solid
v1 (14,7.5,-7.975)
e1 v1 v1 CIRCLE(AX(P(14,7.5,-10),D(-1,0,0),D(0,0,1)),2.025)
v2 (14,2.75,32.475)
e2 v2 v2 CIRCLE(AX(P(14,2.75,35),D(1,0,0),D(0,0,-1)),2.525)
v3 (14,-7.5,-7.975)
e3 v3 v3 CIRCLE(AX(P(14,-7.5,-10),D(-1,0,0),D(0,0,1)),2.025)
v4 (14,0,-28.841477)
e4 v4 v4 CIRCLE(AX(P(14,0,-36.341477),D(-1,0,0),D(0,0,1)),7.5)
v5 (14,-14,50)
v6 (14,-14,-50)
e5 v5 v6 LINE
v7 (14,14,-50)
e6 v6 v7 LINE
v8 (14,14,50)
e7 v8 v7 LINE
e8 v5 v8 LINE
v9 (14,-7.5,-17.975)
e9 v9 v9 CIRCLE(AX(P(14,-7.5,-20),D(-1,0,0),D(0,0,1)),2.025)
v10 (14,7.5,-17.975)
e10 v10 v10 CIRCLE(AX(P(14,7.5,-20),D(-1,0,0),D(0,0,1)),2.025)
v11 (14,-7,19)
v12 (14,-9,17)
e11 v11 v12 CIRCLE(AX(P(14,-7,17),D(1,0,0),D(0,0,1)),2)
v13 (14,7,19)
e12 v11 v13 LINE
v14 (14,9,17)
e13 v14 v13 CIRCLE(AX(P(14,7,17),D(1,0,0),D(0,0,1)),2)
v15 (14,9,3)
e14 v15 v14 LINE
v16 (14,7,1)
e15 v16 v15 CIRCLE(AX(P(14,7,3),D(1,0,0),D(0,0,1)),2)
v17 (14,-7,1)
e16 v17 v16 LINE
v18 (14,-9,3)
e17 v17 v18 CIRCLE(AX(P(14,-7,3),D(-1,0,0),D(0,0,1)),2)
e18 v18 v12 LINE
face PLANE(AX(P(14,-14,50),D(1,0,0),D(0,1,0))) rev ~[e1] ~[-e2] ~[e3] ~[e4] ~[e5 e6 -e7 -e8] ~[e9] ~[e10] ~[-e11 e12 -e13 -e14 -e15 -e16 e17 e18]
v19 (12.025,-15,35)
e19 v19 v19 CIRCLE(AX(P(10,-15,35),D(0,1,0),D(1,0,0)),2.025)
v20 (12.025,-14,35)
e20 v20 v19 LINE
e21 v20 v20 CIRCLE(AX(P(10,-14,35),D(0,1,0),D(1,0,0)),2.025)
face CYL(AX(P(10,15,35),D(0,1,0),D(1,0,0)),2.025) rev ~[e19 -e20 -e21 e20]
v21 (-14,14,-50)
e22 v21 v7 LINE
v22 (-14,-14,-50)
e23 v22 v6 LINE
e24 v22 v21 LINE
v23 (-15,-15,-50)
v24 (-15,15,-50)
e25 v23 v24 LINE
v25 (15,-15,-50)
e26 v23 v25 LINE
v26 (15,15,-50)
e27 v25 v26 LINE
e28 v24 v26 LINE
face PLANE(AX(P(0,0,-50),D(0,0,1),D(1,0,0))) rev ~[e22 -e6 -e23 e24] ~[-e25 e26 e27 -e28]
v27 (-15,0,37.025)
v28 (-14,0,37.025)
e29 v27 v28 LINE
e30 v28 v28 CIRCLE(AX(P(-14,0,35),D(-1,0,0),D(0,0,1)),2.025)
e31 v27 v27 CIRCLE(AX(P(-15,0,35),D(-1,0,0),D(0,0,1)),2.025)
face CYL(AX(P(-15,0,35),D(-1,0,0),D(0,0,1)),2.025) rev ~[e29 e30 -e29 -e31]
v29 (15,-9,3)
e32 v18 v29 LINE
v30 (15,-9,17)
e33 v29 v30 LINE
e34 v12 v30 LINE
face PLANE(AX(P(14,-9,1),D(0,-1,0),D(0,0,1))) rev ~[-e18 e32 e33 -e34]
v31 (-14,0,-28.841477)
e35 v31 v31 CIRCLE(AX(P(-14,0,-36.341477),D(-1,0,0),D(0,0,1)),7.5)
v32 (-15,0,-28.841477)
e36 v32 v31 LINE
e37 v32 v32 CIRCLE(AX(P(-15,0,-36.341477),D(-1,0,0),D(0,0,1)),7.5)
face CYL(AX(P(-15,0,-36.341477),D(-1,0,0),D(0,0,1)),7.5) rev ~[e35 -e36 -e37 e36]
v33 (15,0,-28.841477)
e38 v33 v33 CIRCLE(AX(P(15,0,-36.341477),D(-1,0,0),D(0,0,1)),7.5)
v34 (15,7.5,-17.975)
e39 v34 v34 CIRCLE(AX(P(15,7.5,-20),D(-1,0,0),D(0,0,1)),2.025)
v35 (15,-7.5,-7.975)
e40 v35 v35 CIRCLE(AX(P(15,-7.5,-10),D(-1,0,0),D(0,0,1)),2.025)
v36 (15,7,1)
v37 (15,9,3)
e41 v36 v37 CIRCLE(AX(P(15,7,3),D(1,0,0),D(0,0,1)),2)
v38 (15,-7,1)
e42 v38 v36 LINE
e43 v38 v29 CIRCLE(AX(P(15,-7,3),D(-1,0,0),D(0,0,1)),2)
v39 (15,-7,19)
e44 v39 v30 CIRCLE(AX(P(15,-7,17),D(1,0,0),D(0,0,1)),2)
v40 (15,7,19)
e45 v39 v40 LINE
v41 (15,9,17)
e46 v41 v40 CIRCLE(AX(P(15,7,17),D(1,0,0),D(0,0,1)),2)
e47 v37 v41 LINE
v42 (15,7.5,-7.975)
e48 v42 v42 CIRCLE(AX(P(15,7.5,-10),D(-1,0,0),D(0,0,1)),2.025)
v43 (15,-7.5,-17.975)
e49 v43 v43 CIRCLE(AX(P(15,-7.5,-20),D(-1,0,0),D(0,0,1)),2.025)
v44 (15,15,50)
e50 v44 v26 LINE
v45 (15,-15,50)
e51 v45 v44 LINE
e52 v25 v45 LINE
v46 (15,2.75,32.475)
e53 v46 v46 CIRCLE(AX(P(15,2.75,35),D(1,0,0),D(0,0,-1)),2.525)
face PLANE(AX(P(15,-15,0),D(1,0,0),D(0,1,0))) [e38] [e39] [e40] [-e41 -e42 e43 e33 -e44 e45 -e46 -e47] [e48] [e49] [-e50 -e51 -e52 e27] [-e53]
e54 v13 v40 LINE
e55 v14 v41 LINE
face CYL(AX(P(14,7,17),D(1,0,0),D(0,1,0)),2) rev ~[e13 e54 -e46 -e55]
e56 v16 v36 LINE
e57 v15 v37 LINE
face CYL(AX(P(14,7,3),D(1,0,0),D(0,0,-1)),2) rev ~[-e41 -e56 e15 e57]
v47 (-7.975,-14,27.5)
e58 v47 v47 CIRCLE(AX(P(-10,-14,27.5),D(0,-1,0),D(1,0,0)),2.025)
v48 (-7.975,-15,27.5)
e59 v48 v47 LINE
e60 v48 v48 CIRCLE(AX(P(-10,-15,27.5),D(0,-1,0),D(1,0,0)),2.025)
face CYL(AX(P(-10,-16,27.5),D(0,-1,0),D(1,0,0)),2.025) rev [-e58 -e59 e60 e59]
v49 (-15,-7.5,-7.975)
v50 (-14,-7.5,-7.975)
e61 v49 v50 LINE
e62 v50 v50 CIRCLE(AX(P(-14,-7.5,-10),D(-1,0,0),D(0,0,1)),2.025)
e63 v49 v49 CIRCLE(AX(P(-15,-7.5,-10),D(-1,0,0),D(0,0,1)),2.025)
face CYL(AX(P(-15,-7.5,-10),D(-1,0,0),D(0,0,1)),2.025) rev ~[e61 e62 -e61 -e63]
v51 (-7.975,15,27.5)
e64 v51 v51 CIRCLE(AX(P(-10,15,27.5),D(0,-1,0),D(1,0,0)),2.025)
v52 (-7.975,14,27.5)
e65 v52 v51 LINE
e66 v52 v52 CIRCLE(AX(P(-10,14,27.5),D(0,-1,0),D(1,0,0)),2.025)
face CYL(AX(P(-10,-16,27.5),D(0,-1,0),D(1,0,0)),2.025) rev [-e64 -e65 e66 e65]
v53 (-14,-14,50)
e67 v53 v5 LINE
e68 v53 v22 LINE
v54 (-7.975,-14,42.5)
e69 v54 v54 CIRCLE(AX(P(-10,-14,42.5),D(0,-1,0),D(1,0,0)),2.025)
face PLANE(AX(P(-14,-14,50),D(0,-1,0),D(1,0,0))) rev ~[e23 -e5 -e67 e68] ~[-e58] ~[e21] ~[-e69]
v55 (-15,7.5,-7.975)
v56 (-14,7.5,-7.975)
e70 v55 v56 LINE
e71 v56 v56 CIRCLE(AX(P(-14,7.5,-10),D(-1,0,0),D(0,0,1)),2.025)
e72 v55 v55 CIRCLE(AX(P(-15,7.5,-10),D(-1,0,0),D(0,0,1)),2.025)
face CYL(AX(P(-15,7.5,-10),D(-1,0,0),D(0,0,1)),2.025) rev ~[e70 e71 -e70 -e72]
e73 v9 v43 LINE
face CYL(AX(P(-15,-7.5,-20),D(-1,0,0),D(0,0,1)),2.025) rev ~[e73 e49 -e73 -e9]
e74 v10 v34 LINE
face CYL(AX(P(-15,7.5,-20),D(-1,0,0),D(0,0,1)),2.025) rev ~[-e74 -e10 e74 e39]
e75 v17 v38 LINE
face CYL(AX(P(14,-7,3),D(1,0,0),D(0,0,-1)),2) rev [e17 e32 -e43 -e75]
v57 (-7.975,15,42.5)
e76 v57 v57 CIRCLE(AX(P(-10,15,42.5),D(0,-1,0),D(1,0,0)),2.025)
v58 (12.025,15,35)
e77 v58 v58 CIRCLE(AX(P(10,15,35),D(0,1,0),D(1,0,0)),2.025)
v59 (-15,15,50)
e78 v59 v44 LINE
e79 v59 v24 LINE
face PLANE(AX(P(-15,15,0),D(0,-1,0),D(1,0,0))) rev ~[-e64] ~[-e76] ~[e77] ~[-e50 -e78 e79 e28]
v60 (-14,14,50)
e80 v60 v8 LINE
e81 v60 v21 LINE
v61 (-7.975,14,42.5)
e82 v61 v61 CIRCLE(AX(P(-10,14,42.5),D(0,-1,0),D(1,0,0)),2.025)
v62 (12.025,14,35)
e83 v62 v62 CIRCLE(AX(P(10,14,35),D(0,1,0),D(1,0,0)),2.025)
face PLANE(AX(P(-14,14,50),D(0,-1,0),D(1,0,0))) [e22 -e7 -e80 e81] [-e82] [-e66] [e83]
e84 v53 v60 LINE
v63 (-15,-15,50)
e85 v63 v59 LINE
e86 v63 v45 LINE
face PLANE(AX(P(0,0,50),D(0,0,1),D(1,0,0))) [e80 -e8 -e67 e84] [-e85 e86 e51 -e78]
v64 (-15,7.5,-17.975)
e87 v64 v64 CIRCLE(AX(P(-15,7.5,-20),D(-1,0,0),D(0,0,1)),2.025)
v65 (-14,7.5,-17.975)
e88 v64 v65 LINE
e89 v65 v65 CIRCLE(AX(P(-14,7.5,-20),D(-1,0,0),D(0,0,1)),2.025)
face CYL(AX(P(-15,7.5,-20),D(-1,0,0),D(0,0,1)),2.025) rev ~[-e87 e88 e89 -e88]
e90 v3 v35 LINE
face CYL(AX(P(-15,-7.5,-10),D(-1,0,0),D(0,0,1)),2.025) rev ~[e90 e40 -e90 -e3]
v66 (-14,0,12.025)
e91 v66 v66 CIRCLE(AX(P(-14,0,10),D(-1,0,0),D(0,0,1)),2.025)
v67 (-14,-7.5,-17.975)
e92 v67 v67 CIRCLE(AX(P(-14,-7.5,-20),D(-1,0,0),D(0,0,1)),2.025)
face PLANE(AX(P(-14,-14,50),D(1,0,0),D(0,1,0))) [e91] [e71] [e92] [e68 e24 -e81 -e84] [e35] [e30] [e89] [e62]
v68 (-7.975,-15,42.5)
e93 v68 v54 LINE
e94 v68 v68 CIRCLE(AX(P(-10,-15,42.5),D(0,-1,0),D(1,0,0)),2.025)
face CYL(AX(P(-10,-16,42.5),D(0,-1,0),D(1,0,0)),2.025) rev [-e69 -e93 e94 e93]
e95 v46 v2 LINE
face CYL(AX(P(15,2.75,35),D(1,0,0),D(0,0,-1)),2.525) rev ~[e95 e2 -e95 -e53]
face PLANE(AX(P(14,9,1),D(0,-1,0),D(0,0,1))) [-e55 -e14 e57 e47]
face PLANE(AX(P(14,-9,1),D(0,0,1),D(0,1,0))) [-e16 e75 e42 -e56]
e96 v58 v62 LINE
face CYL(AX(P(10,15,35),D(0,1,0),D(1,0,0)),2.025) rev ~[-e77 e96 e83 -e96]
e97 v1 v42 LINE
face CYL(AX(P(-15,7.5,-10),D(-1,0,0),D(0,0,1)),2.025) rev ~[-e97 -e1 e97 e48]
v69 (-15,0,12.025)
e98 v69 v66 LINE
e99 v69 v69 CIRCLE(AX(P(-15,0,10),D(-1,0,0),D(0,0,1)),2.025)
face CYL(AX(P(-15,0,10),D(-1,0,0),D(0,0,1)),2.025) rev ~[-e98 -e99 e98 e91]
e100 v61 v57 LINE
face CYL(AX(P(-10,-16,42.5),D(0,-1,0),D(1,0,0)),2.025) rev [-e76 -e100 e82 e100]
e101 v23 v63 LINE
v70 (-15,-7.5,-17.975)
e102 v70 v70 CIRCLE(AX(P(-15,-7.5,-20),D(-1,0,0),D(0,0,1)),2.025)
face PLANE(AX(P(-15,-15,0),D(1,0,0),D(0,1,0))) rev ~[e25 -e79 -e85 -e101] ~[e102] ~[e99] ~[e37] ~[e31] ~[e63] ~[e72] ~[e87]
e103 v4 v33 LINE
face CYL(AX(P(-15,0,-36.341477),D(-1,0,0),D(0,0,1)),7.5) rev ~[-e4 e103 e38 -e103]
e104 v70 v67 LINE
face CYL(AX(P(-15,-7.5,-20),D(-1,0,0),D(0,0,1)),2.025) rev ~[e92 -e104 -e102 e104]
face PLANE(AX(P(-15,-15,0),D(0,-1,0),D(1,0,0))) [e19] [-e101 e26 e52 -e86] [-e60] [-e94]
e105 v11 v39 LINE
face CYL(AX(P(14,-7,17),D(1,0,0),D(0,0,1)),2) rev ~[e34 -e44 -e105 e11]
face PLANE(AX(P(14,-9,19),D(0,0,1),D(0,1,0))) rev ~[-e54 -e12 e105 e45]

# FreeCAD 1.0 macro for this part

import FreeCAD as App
import Part
import Sketcher
Q = App.Units.Quantity


def edges_at(feature, points):
    """Names of the edges that pass closest to the given points."""
    edges = feature.Shape.Edges
    near = lambda p: min(range(len(edges)), key=lambda i: edges[i].distToShape(Part.Vertex(*p))[0])
    return sorted({f"Edge{near(p) + 1}" for p in points})

doc = App.newDocument("Part")
body = doc.addObject("PartDesign::Body", "Body")

sketch1 = body.newObject("Sketcher::SketchObject", "Sketch")
sketch1.AttachmentSupport = (doc.getObject("XY_Plane"), [""])
sketch1.MapMode = "FlatFace"
sketch1.addGeometry(Part.LineSegment(App.Vector(-15, 15, 0), App.Vector(-15, -15, 0)), False)
sketch1.addGeometry(Part.LineSegment(App.Vector(-15, -15, 0), App.Vector(15, -15, 0)), False)
sketch1.addGeometry(Part.LineSegment(App.Vector(15, -15, 0), App.Vector(15, 15, 0)), False)
sketch1.addGeometry(Part.LineSegment(App.Vector(15, 15, 0), App.Vector(-15, 15, 0)), False)
sketch1.addConstraint(Sketcher.Constraint("Coincident", 0, 2, 1, 1))
sketch1.addConstraint(Sketcher.Constraint("Coincident", 1, 2, 2, 1))
sketch1.addConstraint(Sketcher.Constraint("Coincident", 2, 2, 3, 1))
sketch1.addConstraint(Sketcher.Constraint("Coincident", 3, 2, 0, 1))
sketch1.addConstraint(Sketcher.Constraint("Vertical", 0))
sketch1.addConstraint(Sketcher.Constraint("Horizontal", 1))
sketch1.addConstraint(Sketcher.Constraint("Vertical", 2))
sketch1.addConstraint(Sketcher.Constraint("Horizontal", 3))
sketch1.addConstraint(Sketcher.Constraint("Symmetric", 0, 2, 2, 2, -1, 1))
sketch1.addConstraint(Sketcher.Constraint("Equal", 3, 0))
sketch1.addConstraint(Sketcher.Constraint("DistanceX", 1, 1, 1, 2, Q("30 mm")))
pad1 = body.newObject("PartDesign::Pad", "Pad")
pad1.Profile = sketch1
pad1.Length = 100
pad1.Midplane = True

sketch2 = body.newObject("Sketcher::SketchObject", "Sketch001")
sketch2.AttachmentSupport = (doc.getObject("XY_Plane"), [""])
sketch2.MapMode = "FlatFace"
sketch2.AttachmentOffset = App.Placement(App.Vector(0, 0, 50), App.Rotation())
sketch2.addGeometry(Part.LineSegment(App.Vector(-14, 14, 0), App.Vector(-14, -14, 0)), False)
sketch2.addGeometry(Part.LineSegment(App.Vector(-14, -14, 0), App.Vector(14, -14, 0)), False)
sketch2.addGeometry(Part.LineSegment(App.Vector(14, -14, 0), App.Vector(14, 14, 0)), False)
sketch2.addGeometry(Part.LineSegment(App.Vector(14, 14, 0), App.Vector(-14, 14, 0)), False)
sketch2.addConstraint(Sketcher.Constraint("Coincident", 0, 2, 1, 1))
sketch2.addConstraint(Sketcher.Constraint("Coincident", 1, 2, 2, 1))
sketch2.addConstraint(Sketcher.Constraint("Coincident", 2, 2, 3, 1))
sketch2.addConstraint(Sketcher.Constraint("Coincident", 3, 2, 0, 1))
sketch2.addConstraint(Sketcher.Constraint("Vertical", 0))
sketch2.addConstraint(Sketcher.Constraint("Horizontal", 1))
sketch2.addConstraint(Sketcher.Constraint("Vertical", 2))
sketch2.addConstraint(Sketcher.Constraint("Horizontal", 3))
sketch2.addConstraint(Sketcher.Constraint("Symmetric", 0, 2, 2, 2, -1, 1))
sketch2.addConstraint(Sketcher.Constraint("Equal", 3, 0))
sketch2.addConstraint(Sketcher.Constraint("DistanceX", 1, 1, 1, 2, Q("28 mm")))
pocket1 = body.newObject("PartDesign::Pocket", "Pocket")
pocket1.Profile = sketch2
pocket1.Type = "ThroughAll"
pocket1.Midplane = True

sketch3 = body.newObject("Sketcher::SketchObject", "Sketch002")
sketch3.AttachmentSupport = (doc.getObject("YZ_Plane"), [""])
sketch3.MapMode = "FlatFace"
sketch3.AttachmentOffset = App.Placement(App.Vector(0, 0, -15), App.Rotation())
sketch3.addGeometry(Part.Circle(App.Vector(0, 10, 0), App.Vector(0, 0, 1), 2.025), False)
sketch3.addGeometry(Part.Circle(App.Vector(0, 35, 0), App.Vector(0, 0, 1), 2.025), False)
sketch3.addConstraint(Sketcher.Constraint("Equal", 0, 1))
sketch3.addConstraint(Sketcher.Constraint("PointOnObject", 0, 3, -2))
sketch3.addConstraint(Sketcher.Constraint("PointOnObject", 1, 3, -2))
sketch3.addConstraint(Sketcher.Constraint("Diameter", 0, Q("4.05 mm")))
sketch3.addConstraint(Sketcher.Constraint("DistanceY", -1, 1, 0, 3, Q("10 mm")))
sketch3.addConstraint(Sketcher.Constraint("DistanceY", -1, 1, 1, 3, Q("35 mm")))
pocket2 = body.newObject("PartDesign::Pocket", "Pocket001")
pocket2.Profile = sketch3
pocket2.Length = 1
pocket2.Reversed = True

sketch4 = body.newObject("Sketcher::SketchObject", "Sketch003")
sketch4.AttachmentSupport = (doc.getObject("YZ_Plane"), [""])
sketch4.MapMode = "FlatFace"
sketch4.AttachmentOffset = App.Placement(App.Vector(0, 0, 14), App.Rotation())
sketch4.addGeometry(Part.LineSegment(App.Vector(9, 1, 0), App.Vector(-9, 1, 0)), False)
sketch4.addGeometry(Part.LineSegment(App.Vector(-9, 1, 0), App.Vector(-9, 19, 0)), False)
sketch4.addGeometry(Part.LineSegment(App.Vector(-9, 19, 0), App.Vector(9, 19, 0)), False)
sketch4.addGeometry(Part.LineSegment(App.Vector(9, 19, 0), App.Vector(9, 1, 0)), False)
sketch4.addConstraint(Sketcher.Constraint("Coincident", 0, 2, 1, 1))
sketch4.addConstraint(Sketcher.Constraint("Coincident", 1, 2, 2, 1))
sketch4.addConstraint(Sketcher.Constraint("Coincident", 2, 2, 3, 1))
sketch4.addConstraint(Sketcher.Constraint("Coincident", 3, 2, 0, 1))
sketch4.addConstraint(Sketcher.Constraint("Horizontal", 0))
sketch4.addConstraint(Sketcher.Constraint("Vertical", 1))
sketch4.addConstraint(Sketcher.Constraint("Horizontal", 2))
sketch4.addConstraint(Sketcher.Constraint("Vertical", 3))
sketch4.addConstraint(Sketcher.Constraint("Equal", 2, 1))
sketch4.addConstraint(Sketcher.Constraint("DistanceX", 0, 2, 0, 1, Q("18 mm")))
sketch4.addConstraint(Sketcher.Constraint("DistanceX", 0, 2, -1, 1, Q("9 mm")))
sketch4.addConstraint(Sketcher.Constraint("DistanceY", -1, 1, 0, 2, Q("1 mm")))
pocket3 = body.newObject("PartDesign::Pocket", "Pocket002")
pocket3.Profile = sketch4
pocket3.Length = 1
pocket3.Reversed = True
doc.recompute()

fillet = body.newObject("PartDesign::Fillet", "Fillet")
fillet.Base = (pocket3, edges_at(pocket3, [
    (14.5, 9, 19),
    (14.5, -9, 19),
    (14.5, -9, 1),
    (14.5, 9, 1),
]))
fillet.Radius = 2

sketch5 = body.newObject("Sketcher::SketchObject", "Sketch004")
sketch5.AttachmentSupport = (doc.getObject("XZ_Plane"), [""])
sketch5.MapMode = "FlatFace"
sketch5.AttachmentOffset = App.Placement(App.Vector(0, 0, 16), App.Rotation())
sketch5.addGeometry(Part.Circle(App.Vector(-10, 27.5, 0), App.Vector(0, 0, 1), 2.025), False)
sketch5.addGeometry(Part.Circle(App.Vector(-10, 42.5, 0), App.Vector(0, 0, 1), 2.025), False)
sketch5.addConstraint(Sketcher.Constraint("Equal", 0, 1))
sketch5.addConstraint(Sketcher.Constraint("Vertical", 0, 3, 1, 3))
sketch5.addConstraint(Sketcher.Constraint("Diameter", 0, Q("4.05 mm")))
sketch5.addConstraint(Sketcher.Constraint("DistanceX", 0, 3, -1, 1, Q("10 mm")))
sketch5.addConstraint(Sketcher.Constraint("DistanceY", 0, 3, 1, 3, Q("15 mm")))
sketch5.addConstraint(Sketcher.Constraint("DistanceY", -1, 1, 0, 3, Q("27.5 mm")))
pocket4 = body.newObject("PartDesign::Pocket", "Pocket003")
pocket4.Profile = sketch5
pocket4.Length = 32
doc.recompute()

mirrored = body.newObject("PartDesign::Mirrored", "Mirrored")
mirrored.Originals = [pocket4]
mirrored.MirrorPlane = (doc.getObject("YZ_Plane"), [""])
body.Tip = mirrored

sketch6 = body.newObject("Sketcher::SketchObject", "Sketch005")
sketch6.AttachmentSupport = (doc.getObject("YZ_Plane"), [""])
sketch6.MapMode = "FlatFace"
sketch6.AttachmentOffset = App.Placement(App.Vector(0, 0, -15), App.Rotation())
sketch6.addGeometry(Part.Circle(App.Vector(0, 35, 0), App.Vector(0, 0, 1), 2.025), False)
sketch6.addGeometry(Part.Circle(App.Vector(-7.5, -20, 0), App.Vector(0, 0, 1), 2.025), False)
sketch6.addGeometry(Part.Circle(App.Vector(7.5, -20, 0), App.Vector(0, 0, 1), 2.025), False)
sketch6.addConstraint(Sketcher.Constraint("Equal", 0, 1))
sketch6.addConstraint(Sketcher.Constraint("Equal", 1, 2))
sketch6.addConstraint(Sketcher.Constraint("Symmetric", 1, 3, 2, 3, -2))
sketch6.addConstraint(Sketcher.Constraint("PointOnObject", 0, 3, -2))
sketch6.addConstraint(Sketcher.Constraint("Diameter", 0, Q("4.05 mm")))
sketch6.addConstraint(Sketcher.Constraint("DistanceY", -1, 1, 0, 3, Q("35 mm")))
sketch6.addConstraint(Sketcher.Constraint("DistanceY", 1, 3, -1, 1, Q("20 mm")))
sketch6.addConstraint(Sketcher.Constraint("DistanceX", 1, 3, 2, 3, Q("15 mm")))
pocket5 = body.newObject("PartDesign::Pocket", "Pocket004")
pocket5.Profile = sketch6
pocket5.Type = "ThroughAll"
pocket5.Midplane = True

sketch7 = body.newObject("Sketcher::SketchObject", "Sketch006")
sketch7.AttachmentSupport = (doc.getObject("YZ_Plane"), [""])
sketch7.MapMode = "FlatFace"
sketch7.AttachmentOffset = App.Placement(App.Vector(0, 0, -15), App.Rotation())
sketch7.addGeometry(Part.Circle(App.Vector(0, -36.341477, 0), App.Vector(0, 0, 1), 7.5), False)
sketch7.addConstraint(Sketcher.Constraint("PointOnObject", 0, 3, -2))
sketch7.addConstraint(Sketcher.Constraint("Diameter", 0, Q("15 mm")))
sketch7.addConstraint(Sketcher.Constraint("DistanceY", 0, 3, -1, 1, Q("36.341477 mm")))
pocket6 = body.newObject("PartDesign::Pocket", "Pocket005")
pocket6.Profile = sketch7
pocket6.Type = "ThroughAll"
pocket6.Midplane = True

sketch8 = body.newObject("Sketcher::SketchObject", "Sketch007")
sketch8.AttachmentSupport = (doc.getObject("YZ_Plane"), [""])
sketch8.MapMode = "FlatFace"
sketch8.AttachmentOffset = App.Placement(App.Vector(0, 0, -15), App.Rotation())
sketch8.addGeometry(Part.Circle(App.Vector(7.5, -10, 0), App.Vector(0, 0, 1), 2.025), False)
sketch8.addGeometry(Part.Circle(App.Vector(-7.5, -10, 0), App.Vector(0, 0, 1), 2.025), False)
sketch8.addConstraint(Sketcher.Constraint("Equal", 0, 1))
sketch8.addConstraint(Sketcher.Constraint("Symmetric", 0, 3, 1, 3, -2))
sketch8.addConstraint(Sketcher.Constraint("Diameter", 0, Q("4.05 mm")))
sketch8.addConstraint(Sketcher.Constraint("DistanceY", 0, 3, -1, 1, Q("10 mm")))
sketch8.addConstraint(Sketcher.Constraint("DistanceX", 1, 3, 0, 3, Q("15 mm")))
pocket7 = body.newObject("PartDesign::Pocket", "Pocket006")
pocket7.Profile = sketch8
pocket7.Type = "ThroughAll"
pocket7.Midplane = True

sketch9 = body.newObject("Sketcher::SketchObject", "Sketch008")
sketch9.AttachmentSupport = (doc.getObject("XZ_Plane"), [""])
sketch9.MapMode = "FlatFace"
sketch9.AttachmentOffset = App.Placement(App.Vector(0, 0, -15), App.Rotation())
sketch9.addGeometry(Part.Circle(App.Vector(10, 27.5, 0), App.Vector(0, 0, 1), 2.25), False)
sketch9.addGeometry(Part.Circle(App.Vector(10, 42.5, 0), App.Vector(0, 0, 1), 2.25), False)
sketch9.addConstraint(Sketcher.Constraint("Equal", 0, 1))
sketch9.addConstraint(Sketcher.Constraint("Vertical", 0, 3, 1, 3))
sketch9.addConstraint(Sketcher.Constraint("Diameter", 0, Q("4.5 mm")))
sketch9.addConstraint(Sketcher.Constraint("DistanceX", -1, 1, 0, 3, Q("10 mm")))
sketch9.addConstraint(Sketcher.Constraint("DistanceY", 0, 3, 1, 3, Q("15 mm")))
sketch9.addConstraint(Sketcher.Constraint("DistanceY", -1, 1, 0, 3, Q("27.5 mm")))
pad2 = body.newObject("PartDesign::Pad", "Pad001")
pad2.Profile = sketch9
pad2.Length = 1

sketch10 = body.newObject("Sketcher::SketchObject", "Sketch009")
sketch10.AttachmentSupport = (doc.getObject("XZ_Plane"), [""])
sketch10.MapMode = "FlatFace"
sketch10.AttachmentOffset = App.Placement(App.Vector(0, 0, 15), App.Rotation())
sketch10.addGeometry(Part.Circle(App.Vector(10, 42.5, 0), App.Vector(0, 0, 1), 2.5), False)
sketch10.addGeometry(Part.Circle(App.Vector(10, 27.5, 0), App.Vector(0, 0, 1), 2.5), False)
sketch10.addConstraint(Sketcher.Constraint("Equal", 0, 1))
sketch10.addConstraint(Sketcher.Constraint("Vertical", 0, 3, 1, 3))
sketch10.addConstraint(Sketcher.Constraint("Diameter", 0, Q("5 mm")))
sketch10.addConstraint(Sketcher.Constraint("DistanceX", -1, 1, 0, 3, Q("10 mm")))
sketch10.addConstraint(Sketcher.Constraint("DistanceY", 1, 3, 0, 3, Q("15 mm")))
sketch10.addConstraint(Sketcher.Constraint("DistanceY", -1, 1, 0, 3, Q("42.5 mm")))
pad3 = body.newObject("PartDesign::Pad", "Pad002")
pad3.Profile = sketch10
pad3.Length = 1
pad3.Reversed = True

sketch11 = body.newObject("Sketcher::SketchObject", "Sketch010")
sketch11.AttachmentSupport = (doc.getObject("XZ_Plane"), [""])
sketch11.MapMode = "FlatFace"
sketch11.AttachmentOffset = App.Placement(App.Vector(0, 0, -15), App.Rotation())
sketch11.addGeometry(Part.Circle(App.Vector(10, 35, 0), App.Vector(0, 0, 1), 2.025), False)
sketch11.addConstraint(Sketcher.Constraint("Diameter", 0, Q("4.05 mm")))
sketch11.addConstraint(Sketcher.Constraint("DistanceX", -1, 1, 0, 3, Q("10 mm")))
sketch11.addConstraint(Sketcher.Constraint("DistanceY", -1, 1, 0, 3, Q("35 mm")))
pocket8 = body.newObject("PartDesign::Pocket", "Pocket007")
pocket8.Profile = sketch11
pocket8.Type = "ThroughAll"
pocket8.Midplane = True

sketch12 = body.newObject("Sketcher::SketchObject", "Sketch011")
sketch12.AttachmentSupport = (doc.getObject("YZ_Plane"), [""])
sketch12.MapMode = "FlatFace"
sketch12.AttachmentOffset = App.Placement(App.Vector(0, 0, 15), App.Rotation())
sketch12.addGeometry(Part.Circle(App.Vector(0, 35, 0), App.Vector(0, 0, 1), 2.5), False)
sketch12.addConstraint(Sketcher.Constraint("PointOnObject", 0, 3, -2))
sketch12.addConstraint(Sketcher.Constraint("Diameter", 0, Q("5 mm")))
sketch12.addConstraint(Sketcher.Constraint("DistanceY", -1, 1, 0, 3, Q("35 mm")))
pad4 = body.newObject("PartDesign::Pad", "Pad003")
pad4.Profile = sketch12
pad4.Length = 1
pad4.Reversed = True

sketch13 = body.newObject("Sketcher::SketchObject", "Sketch012")
sketch13.AttachmentSupport = (doc.getObject("YZ_Plane"), [""])
sketch13.MapMode = "FlatFace"
sketch13.AttachmentOffset = App.Placement(App.Vector(0, 0, 15), App.Rotation())
sketch13.addGeometry(Part.Circle(App.Vector(2.75, 35, 0), App.Vector(0, 0, 1), 2.525), False)
sketch13.addConstraint(Sketcher.Constraint("Diameter", 0, Q("5.05 mm")))
sketch13.addConstraint(Sketcher.Constraint("DistanceY", -1, 1, 0, 3, Q("35 mm")))
sketch13.addConstraint(Sketcher.Constraint("DistanceX", -1, 1, 0, 3, Q("2.75 mm")))
pocket9 = body.newObject("PartDesign::Pocket", "Pocket008")
pocket9.Profile = sketch13
pocket9.Type = "UpToFirst"

doc.recompute()
